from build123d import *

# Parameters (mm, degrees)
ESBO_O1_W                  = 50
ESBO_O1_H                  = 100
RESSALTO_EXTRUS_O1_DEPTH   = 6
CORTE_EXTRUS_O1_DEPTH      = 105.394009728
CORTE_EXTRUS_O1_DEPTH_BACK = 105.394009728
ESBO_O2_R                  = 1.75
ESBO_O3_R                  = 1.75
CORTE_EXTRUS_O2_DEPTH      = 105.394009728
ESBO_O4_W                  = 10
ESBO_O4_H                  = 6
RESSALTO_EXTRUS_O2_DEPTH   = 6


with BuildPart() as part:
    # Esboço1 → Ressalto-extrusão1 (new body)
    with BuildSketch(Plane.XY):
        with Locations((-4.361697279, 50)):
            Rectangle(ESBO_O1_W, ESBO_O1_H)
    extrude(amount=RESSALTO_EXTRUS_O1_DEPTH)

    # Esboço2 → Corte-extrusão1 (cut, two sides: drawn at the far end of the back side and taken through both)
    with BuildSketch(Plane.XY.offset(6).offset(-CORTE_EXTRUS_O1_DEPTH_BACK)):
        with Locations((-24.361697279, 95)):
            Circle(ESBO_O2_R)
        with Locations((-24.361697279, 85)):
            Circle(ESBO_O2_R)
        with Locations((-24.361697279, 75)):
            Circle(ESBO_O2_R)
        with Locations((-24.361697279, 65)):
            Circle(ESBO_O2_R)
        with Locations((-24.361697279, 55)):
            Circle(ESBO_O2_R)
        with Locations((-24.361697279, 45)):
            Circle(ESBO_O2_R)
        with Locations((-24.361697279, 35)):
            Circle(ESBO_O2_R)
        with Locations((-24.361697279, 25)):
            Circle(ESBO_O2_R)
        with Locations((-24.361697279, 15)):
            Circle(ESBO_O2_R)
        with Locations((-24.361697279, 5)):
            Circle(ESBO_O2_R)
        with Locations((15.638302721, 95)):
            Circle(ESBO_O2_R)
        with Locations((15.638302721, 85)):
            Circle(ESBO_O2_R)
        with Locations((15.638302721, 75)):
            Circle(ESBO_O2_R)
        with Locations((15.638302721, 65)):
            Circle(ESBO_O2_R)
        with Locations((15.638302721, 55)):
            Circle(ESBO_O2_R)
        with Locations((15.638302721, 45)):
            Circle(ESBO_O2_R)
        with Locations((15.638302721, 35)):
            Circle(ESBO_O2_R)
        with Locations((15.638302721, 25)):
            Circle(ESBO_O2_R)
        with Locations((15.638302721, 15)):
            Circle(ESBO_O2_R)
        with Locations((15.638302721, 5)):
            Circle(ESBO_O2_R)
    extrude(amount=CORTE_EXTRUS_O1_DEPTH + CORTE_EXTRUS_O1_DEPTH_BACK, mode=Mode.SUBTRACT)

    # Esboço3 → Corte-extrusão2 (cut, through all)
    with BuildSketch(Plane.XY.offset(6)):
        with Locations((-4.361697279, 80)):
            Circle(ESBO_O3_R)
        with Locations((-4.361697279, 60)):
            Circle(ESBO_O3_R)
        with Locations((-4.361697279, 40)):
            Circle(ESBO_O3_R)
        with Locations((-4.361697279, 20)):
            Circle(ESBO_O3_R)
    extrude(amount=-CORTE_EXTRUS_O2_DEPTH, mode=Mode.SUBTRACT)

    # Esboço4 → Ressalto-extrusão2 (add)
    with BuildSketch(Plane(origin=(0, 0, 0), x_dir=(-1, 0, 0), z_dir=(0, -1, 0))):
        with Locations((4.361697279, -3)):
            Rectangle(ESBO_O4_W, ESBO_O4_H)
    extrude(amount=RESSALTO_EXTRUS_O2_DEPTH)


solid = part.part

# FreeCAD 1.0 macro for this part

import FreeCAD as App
import Part
import Sketcher

V = App.Vector
Q = App.Units.Quantity


def add_polygon(sketch, points):
    """Adds a closed chain of lines whose ends are joined by coincident constraints."""
    first, n = sketch.GeometryCount, len(points)
    for a, b in zip(points, points[1:] + points[:1]):
        sketch.addGeometry(Part.LineSegment(App.Vector(*a, 0), App.Vector(*b, 0)), False)
    for i in range(n):
        sketch.addConstraint(Sketcher.Constraint("Coincident", first + i, 2, first + (i + 1) % n, 1))

doc = App.newDocument("Part")
body = doc.addObject("PartDesign::Body", "Body")

# Sketch on XY plane
sketch1 = body.newObject("Sketcher::SketchObject", "Sketch")
sketch1.AttachmentSupport = (doc.getObject("XY_Plane"), [""])
sketch1.MapMode = "FlatFace"
add_polygon(sketch1, [(-29, 100), (-29, 0), (21, 0), (21, 100)])  # lines 0-3
sketch1.addConstraint([
    Sketcher.Constraint("Vertical", 0),
    Sketcher.Constraint("Horizontal", 1),
    Sketcher.Constraint("Vertical", 2),
    Sketcher.Constraint("Horizontal", 3),
    Sketcher.Constraint("PointOnObject", 0, 2, -1),
    Sketcher.Constraint("DistanceX", 1, 1, 1, 2, Q("50 mm")),
    Sketcher.Constraint("DistanceY", 0, 2, 0, 1, Q("100 mm")),
    Sketcher.Constraint("DistanceX", 0, 2, -1, 1, Q("29.361697 mm")),
])
pad1 = body.newObject("PartDesign::Pad", "Pad")
pad1.Profile = sketch1
pad1.Length = 6

# Sketch on XY plane
sketch2 = body.newObject("Sketcher::SketchObject", "Sketch001")
sketch2.AttachmentSupport = (doc.getObject("XY_Plane"), [""])
sketch2.MapMode = "FlatFace"
sketch2.AttachmentOffset = App.Placement(V(0, 0, 6), App.Rotation())
sketch2.addGeometry([
    Part.Circle(V(-24.4, 95, 0), V(0, 0, 1), 1.8),  # 0
    Part.Circle(V(-24.4, 85, 0), V(0, 0, 1), 1.8),  # 1
    Part.Circle(V(-24.4, 75, 0), V(0, 0, 1), 1.8),  # 2
    Part.Circle(V(-24.4, 65, 0), V(0, 0, 1), 1.8),  # 3
    Part.Circle(V(-24.4, 55, 0), V(0, 0, 1), 1.8),  # 4
    Part.Circle(V(-24.4, 45, 0), V(0, 0, 1), 1.8),  # 5
    Part.Circle(V(-24.4, 35, 0), V(0, 0, 1), 1.8),  # 6
    Part.Circle(V(-24.4, 25, 0), V(0, 0, 1), 1.8),  # 7
    Part.Circle(V(-24.4, 15, 0), V(0, 0, 1), 1.8),  # 8
    Part.Circle(V(-24.4, 5, 0), V(0, 0, 1), 1.8),  # 9
    Part.Circle(V(15.6, 95, 0), V(0, 0, 1), 1.8),  # 10
    Part.Circle(V(15.6, 85, 0), V(0, 0, 1), 1.8),  # 11
    Part.Circle(V(15.6, 75, 0), V(0, 0, 1), 1.8),  # 12
    Part.Circle(V(15.6, 65, 0), V(0, 0, 1), 1.8),  # 13
    Part.Circle(V(15.6, 55, 0), V(0, 0, 1), 1.8),  # 14
    Part.Circle(V(15.6, 45, 0), V(0, 0, 1), 1.8),  # 15
    Part.Circle(V(15.6, 35, 0), V(0, 0, 1), 1.8),  # 16
    Part.Circle(V(15.6, 25, 0), V(0, 0, 1), 1.8),  # 17
    Part.Circle(V(15.6, 15, 0), V(0, 0, 1), 1.8),  # 18
    Part.Circle(V(15.6, 5, 0), V(0, 0, 1), 1.8),  # 19
], False)
sketch2.addConstraint([
    Sketcher.Constraint("Equal", 0, 1),
    Sketcher.Constraint("Equal", 1, 2),
    Sketcher.Constraint("Equal", 2, 3),
    Sketcher.Constraint("Equal", 3, 4),
    Sketcher.Constraint("Equal", 4, 5),
    Sketcher.Constraint("Equal", 5, 6),
    Sketcher.Constraint("Equal", 6, 7),
    Sketcher.Constraint("Equal", 7, 8),
    Sketcher.Constraint("Equal", 8, 9),
    Sketcher.Constraint("Equal", 9, 10),
    Sketcher.Constraint("Equal", 10, 11),
    Sketcher.Constraint("Equal", 11, 12),
    Sketcher.Constraint("Equal", 12, 13),
    Sketcher.Constraint("Equal", 13, 14),
    Sketcher.Constraint("Equal", 14, 15),
    Sketcher.Constraint("Equal", 15, 16),
    Sketcher.Constraint("Equal", 16, 17),
    Sketcher.Constraint("Equal", 17, 18),
    Sketcher.Constraint("Equal", 18, 19),
    Sketcher.Constraint("Horizontal", 0, 3, 10, 3),
    Sketcher.Constraint("Horizontal", 1, 3, 11, 3),
    Sketcher.Constraint("Horizontal", 2, 3, 12, 3),
    Sketcher.Constraint("Horizontal", 3, 3, 13, 3),
    Sketcher.Constraint("Horizontal", 4, 3, 14, 3),
    Sketcher.Constraint("Horizontal", 5, 3, 15, 3),
    Sketcher.Constraint("Horizontal", 6, 3, 16, 3),
    Sketcher.Constraint("Horizontal", 7, 3, 17, 3),
    Sketcher.Constraint("Horizontal", 8, 3, 18, 3),
    Sketcher.Constraint("Horizontal", 9, 3, 19, 3),
    Sketcher.Constraint("Vertical", 0, 3, 1, 3),
    Sketcher.Constraint("Vertical", 1, 3, 2, 3),
    Sketcher.Constraint("Vertical", 2, 3, 3, 3),
    Sketcher.Constraint("Vertical", 3, 3, 4, 3),
    Sketcher.Constraint("Vertical", 4, 3, 5, 3),
    Sketcher.Constraint("Vertical", 5, 3, 6, 3),
    Sketcher.Constraint("Vertical", 6, 3, 7, 3),
    Sketcher.Constraint("Vertical", 7, 3, 8, 3),
    Sketcher.Constraint("Vertical", 8, 3, 9, 3),
    Sketcher.Constraint("Vertical", 10, 3, 11, 3),
    Sketcher.Constraint("Vertical", 11, 3, 12, 3),
    Sketcher.Constraint("Vertical", 12, 3, 13, 3),
    Sketcher.Constraint("Vertical", 13, 3, 14, 3),
    Sketcher.Constraint("Vertical", 14, 3, 15, 3),
    Sketcher.Constraint("Vertical", 15, 3, 16, 3),
    Sketcher.Constraint("Vertical", 16, 3, 17, 3),
    Sketcher.Constraint("Vertical", 17, 3, 18, 3),
    Sketcher.Constraint("Vertical", 18, 3, 19, 3),
    Sketcher.Constraint("Diameter", 0, Q("3.5 mm")),
    Sketcher.Constraint("DistanceY", -1, 1, 0, 3, Q("95 mm")),
    Sketcher.Constraint("DistanceY", -1, 1, 1, 3, Q("85 mm")),
    Sketcher.Constraint("DistanceY", -1, 1, 2, 3, Q("75 mm")),
    Sketcher.Constraint("DistanceY", -1, 1, 3, 3, Q("65 mm")),
    Sketcher.Constraint("DistanceY", -1, 1, 4, 3, Q("55 mm")),
    Sketcher.Constraint("DistanceY", -1, 1, 5, 3, Q("45 mm")),
    Sketcher.Constraint("DistanceY", -1, 1, 6, 3, Q("35 mm")),
    Sketcher.Constraint("DistanceY", -1, 1, 7, 3, Q("25 mm")),
    Sketcher.Constraint("DistanceY", -1, 1, 8, 3, Q("15 mm")),
    Sketcher.Constraint("DistanceY", -1, 1, 9, 3, Q("5 mm")),
    Sketcher.Constraint("DistanceX", 0, 3, 10, 3, Q("40 mm")),
    Sketcher.Constraint("DistanceX", 0, 3, -1, 1, Q("24.361697 mm")),
])
pocket1 = body.newObject("PartDesign::Pocket", "Pocket")
pocket1.Profile = sketch2
pocket1.Type = "ThroughAll"
pocket1.Midplane = True

# Sketch on XY plane
sketch3 = body.newObject("Sketcher::SketchObject", "Sketch002")
sketch3.AttachmentSupport = (doc.getObject("XY_Plane"), [""])
sketch3.MapMode = "FlatFace"
sketch3.AttachmentOffset = App.Placement(V(0, 0, 6), App.Rotation())
sketch3.addGeometry([
    Part.Circle(V(-4.4, 80, 0), V(0, 0, 1), 1.8),
    Part.Circle(V(-4.4, 60, 0), V(0, 0, 1), 1.8),
    Part.Circle(V(-4.4, 40, 0), V(0, 0, 1), 1.8),
    Part.Circle(V(-4.4, 20, 0), V(0, 0, 1), 1.8),
], False)
sketch3.addConstraint([
    Sketcher.Constraint("Equal", 0, 1),
    Sketcher.Constraint("Equal", 1, 2),
    Sketcher.Constraint("Equal", 2, 3),
    Sketcher.Constraint("Vertical", 0, 3, 1, 3),
    Sketcher.Constraint("Vertical", 1, 3, 2, 3),
    Sketcher.Constraint("Vertical", 2, 3, 3, 3),
    Sketcher.Constraint("Diameter", 0, Q("3.5 mm")),
    Sketcher.Constraint("DistanceY", -1, 1, 0, 3, Q("80 mm")),
    Sketcher.Constraint("DistanceY", -1, 1, 1, 3, Q("60 mm")),
    Sketcher.Constraint("DistanceY", -1, 1, 2, 3, Q("40 mm")),
    Sketcher.Constraint("DistanceY", -1, 1, 3, 3, Q("20 mm")),
    Sketcher.Constraint("DistanceX", 0, 3, -1, 1, Q("4.361697 mm")),
])
pocket2 = body.newObject("PartDesign::Pocket", "Pocket001")
pocket2.Profile = sketch3
pocket2.Type = "ThroughAll"

# Sketch on XZ plane
sketch4 = body.newObject("Sketcher::SketchObject", "Sketch003")
sketch4.AttachmentSupport = (doc.getObject("XZ_Plane"), [""])
sketch4.MapMode = "FlatFace"
add_polygon(sketch4, [(1, 0), (1, 6), (-9, 6), (-9, 0)])  # lines 0-3
sketch4.addConstraint([
    Sketcher.Constraint("Vertical", 0),
    Sketcher.Constraint("Horizontal", 1),
    Sketcher.Constraint("Vertical", 2),
    Sketcher.Constraint("Horizontal", 3),
    Sketcher.Constraint("PointOnObject", 2, 2, -1),
    Sketcher.Constraint("DistanceX", 1, 2, 1, 1, Q("10 mm")),
    Sketcher.Constraint("DistanceY", 0, 1, 0, 2, Q("6 mm")),
    Sketcher.Constraint("DistanceX", -1, 1, 0, 2, Q("0.638303 mm")),
])
pad2 = body.newObject("PartDesign::Pad", "Pad001")
pad2.Profile = sketch4
pad2.Length = 6

doc.recompute()
